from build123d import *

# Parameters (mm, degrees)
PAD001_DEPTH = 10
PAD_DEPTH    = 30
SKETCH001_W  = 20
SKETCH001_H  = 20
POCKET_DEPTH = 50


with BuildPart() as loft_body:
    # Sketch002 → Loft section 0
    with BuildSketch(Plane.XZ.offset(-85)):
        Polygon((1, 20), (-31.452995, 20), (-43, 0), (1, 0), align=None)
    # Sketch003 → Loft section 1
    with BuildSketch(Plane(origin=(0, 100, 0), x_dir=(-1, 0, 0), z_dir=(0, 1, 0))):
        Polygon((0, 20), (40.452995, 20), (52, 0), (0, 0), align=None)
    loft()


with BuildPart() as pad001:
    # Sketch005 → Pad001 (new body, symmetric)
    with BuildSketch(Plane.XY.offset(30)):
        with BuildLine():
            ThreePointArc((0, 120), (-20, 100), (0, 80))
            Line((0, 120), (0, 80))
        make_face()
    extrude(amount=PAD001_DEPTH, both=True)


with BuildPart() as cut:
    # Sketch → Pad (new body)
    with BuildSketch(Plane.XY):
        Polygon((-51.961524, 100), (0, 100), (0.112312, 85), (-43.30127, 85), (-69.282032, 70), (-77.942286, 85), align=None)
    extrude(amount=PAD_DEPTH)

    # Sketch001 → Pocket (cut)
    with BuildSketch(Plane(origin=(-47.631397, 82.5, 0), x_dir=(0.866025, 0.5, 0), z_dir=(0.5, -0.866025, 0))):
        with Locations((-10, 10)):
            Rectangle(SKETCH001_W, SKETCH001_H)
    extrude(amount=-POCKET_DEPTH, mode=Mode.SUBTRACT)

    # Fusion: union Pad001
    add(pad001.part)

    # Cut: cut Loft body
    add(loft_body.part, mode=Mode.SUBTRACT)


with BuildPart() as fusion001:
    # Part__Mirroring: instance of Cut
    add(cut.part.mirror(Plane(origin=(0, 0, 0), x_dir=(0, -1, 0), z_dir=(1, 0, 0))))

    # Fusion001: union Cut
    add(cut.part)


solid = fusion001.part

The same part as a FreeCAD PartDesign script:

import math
import FreeCAD as App
import Part
import Sketcher
Q = App.Units.Quantity


def add_polygon(sketch, points):
    """Adds a closed chain of lines whose ends are joined by coincident constraints."""
    first, n = sketch.GeometryCount, len(points)
    for a, b in zip(points, points[1:] + points[:1]):
        sketch.addGeometry(Part.LineSegment(App.Vector(*a, 0), App.Vector(*b, 0)), False)
    for i in range(n):
        sketch.addConstraint(Sketcher.Constraint("Coincident", first + i, 2, first + (i + 1) % n, 1))

doc = App.newDocument("Part")
body = doc.addObject("PartDesign::Body", "Body")

sketch1 = doc.addObject("Sketcher::SketchObject", "Sketch")
body.addObject(sketch1)
sketch1.AttachmentSupport = (doc.XZ_Plane, [""])
sketch1.MapMode = "FlatFace"
sketch1.AttachmentOffset = App.Placement(App.Vector(0, 0, -85), App.Rotation())
add_polygon(sketch1, [(1, 20), (-31.452995, 20), (-43, 0), (1, 0)])
sketch1.addConstraint(Sketcher.Constraint("Horizontal", 0))
sketch1.addConstraint(Sketcher.Constraint("Horizontal", 2))
sketch1.addConstraint(Sketcher.Constraint("Vertical", 3))
sketch1.addConstraint(Sketcher.Constraint("PointOnObject", 1, 2, -1))
sketch1.addConstraint(Sketcher.Constraint("DistanceX", 2, 1, 2, 2, 44.0))
sketch1.addConstraint(Sketcher.Constraint("DistanceY", 3, 1, 3, 2, 20.0))
sketch1.addConstraint(Sketcher.Constraint("Angle", 1, Q("-119.999999 deg")))
sketch1.addConstraint(Sketcher.Constraint("DistanceX", 1, 2, -1, 1, 43.0))

sketch2 = doc.addObject("Sketcher::SketchObject", "Sketch001")
body.addObject(sketch2)
sketch2.AttachmentSupport = (doc.XZ_Plane, [""])
sketch2.MapMode = "FlatFace"
sketch2.AttachmentOffset = App.Placement(App.Vector(0, 0, -100), App.Rotation())
add_polygon(sketch2, [(-40.452995, 20), (0, 20), (0, 0), (-52, 0)])
sketch2.addConstraint(Sketcher.Constraint("Horizontal", 0))
sketch2.addConstraint(Sketcher.Constraint("Vertical", 1))
sketch2.addConstraint(Sketcher.Constraint("Horizontal", 2))
sketch2.addConstraint(Sketcher.Constraint("Coincident", 1, 2, -1, 1))
sketch2.addConstraint(Sketcher.Constraint("DistanceX", 2, 2, 2, 1, 52.0))
sketch2.addConstraint(Sketcher.Constraint("DistanceY", 1, 2, 1, 1, 20.0))
sketch2.addConstraint(Sketcher.Constraint("Angle", 3, Q("60.000001 deg")))

additiveloft = doc.addObject("PartDesign::AdditiveLoft", "AdditiveLoft")
body.addObject(additiveloft)
additiveloft.Profile = sketch1
additiveloft.Sections = [sketch2]
body2 = doc.addObject("PartDesign::Body", "Body001")

sketch3 = doc.addObject("Sketcher::SketchObject", "Sketch002")
body2.addObject(sketch3)
sketch3.AttachmentSupport = (doc.getObject("XY_Plane001"), [""])
sketch3.MapMode = "FlatFace"
sketch3.AttachmentOffset = App.Placement(App.Vector(0, 0, 30), App.Rotation())
sketch3.addGeometry(Part.ArcOfCircle(Part.Circle(App.Vector(0, 100, 0), App.Vector(0, 0, 1), 20), math.radians(90), math.radians(270)), False)
sketch3.addGeometry(Part.LineSegment(App.Vector(0, 80, 0), App.Vector(0, 120, 0)), False)
sketch3.addConstraint(Sketcher.Constraint("Coincident", 0, 1, 1, 2))
sketch3.addConstraint(Sketcher.Constraint("Coincident", 1, 1, 0, 2))
sketch3.addConstraint(Sketcher.Constraint("Vertical", 1))
sketch3.addConstraint(Sketcher.Constraint("PointOnObject", 0, 3, -2))
sketch3.addConstraint(Sketcher.Constraint("PointOnObject", 0, 1, -2))
sketch3.addConstraint(Sketcher.Constraint("Radius", 0, 20.0))
sketch3.addConstraint(Sketcher.Constraint("DistanceY", -1, 1, 0, 3, 100.0))
pad1 = doc.addObject("PartDesign::Pad", "Pad")
body2.addObject(pad1)
pad1.Profile = sketch3
pad1.Length = 20
pad1.Midplane = True
body3 = doc.addObject("PartDesign::Body", "Body002")

sketch4 = doc.addObject("Sketcher::SketchObject", "Sketch003")
body3.addObject(sketch4)
sketch4.AttachmentSupport = (doc.getObject("XY_Plane002"), [""])
sketch4.MapMode = "FlatFace"
add_polygon(sketch4, [(0, 100), (-51.961524, 100), (-77.942286, 85), (-69.282032, 70), (-43.30127, 85), (0.112312, 85)])
sketch4.addConstraint(Sketcher.Constraint("Horizontal", 0))
sketch4.addConstraint(Sketcher.Constraint("Horizontal", 4))
sketch4.addConstraint(Sketcher.Constraint("PointOnObject", 5, 2, -2))
sketch4.addConstraint(Sketcher.Constraint("Perpendicular", 1, 2))
sketch4.addConstraint(Sketcher.Constraint("Perpendicular", 2, 3))
sketch4.addConstraint(Sketcher.Constraint("Horizontal", 1, 2, 3, 2))
sketch4.addConstraint(Sketcher.Constraint("Equal", 1, 3))
sketch4.addConstraint(Sketcher.Constraint("Angle", 1, Q("-150 deg")))
sketch4.addConstraint(Sketcher.Constraint("Distance", 1, 30.0))
sketch4.addConstraint(Sketcher.Constraint("DistanceY", -1, 1, 0, 2, 100.0))
sketch4.addConstraint(Sketcher.Constraint("DistanceX", 1, 2, 4, 2, 78.054598))
sketch4.addConstraint(Sketcher.Constraint("DistanceX", 0, 2, 0, 1, 51.961524))
pad2 = doc.addObject("PartDesign::Pad", "Pad001")
body3.addObject(pad2)
pad2.Profile = sketch4
pad2.Length = 30

sketch5 = doc.addObject("Sketcher::SketchObject", "Sketch004")
body3.addObject(sketch5)
sketch5.Placement = App.Placement(App.Vector(-47.631397, 82.5, 0), App.Rotation(App.Vector(0.866025303, 0.500000175, 0), App.Vector(0, 0, 1), App.Vector(0.500000175, -0.866025303, 0), "ZXY"))
add_polygon(sketch5, [(-20, 20), (-20, 0), (0, 0), (0, 20)])
sketch5.addConstraint(Sketcher.Constraint("Vertical", 0))
sketch5.addConstraint(Sketcher.Constraint("Horizontal", 1))
sketch5.addConstraint(Sketcher.Constraint("Vertical", 2))
sketch5.addConstraint(Sketcher.Constraint("Horizontal", 3))
sketch5.addConstraint(Sketcher.Constraint("Coincident", 1, 2, -1, 1))
sketch5.addConstraint(Sketcher.Constraint("Equal", 3, 0))
sketch5.addConstraint(Sketcher.Constraint("DistanceX", 1, 1, 1, 2, 20.0))
pocket1 = doc.addObject("PartDesign::Pocket", "Pocket")
body3.addObject(pocket1)
pocket1.Profile = sketch5
pocket1.Length = 50
doc.recompute()

boolean = doc.addObject("PartDesign::Boolean", "Boolean")
body3.addObject(boolean)
boolean.Type = "Fuse"
boolean.addObjects([body2])
doc.recompute()

boolean2 = doc.addObject("PartDesign::Boolean", "Boolean001")
body3.addObject(boolean2)
boolean2.Type = "Cut"
boolean2.addObjects([body])
body4 = doc.addObject("PartDesign::Body", "Body003")
doc.recompute()

mirroring = doc.addObject("Part::Mirroring", "Mirroring")
mirroring.Source = body3
mirroring.Base = App.Vector(0, 0, 0)
mirroring.Normal = App.Vector(1, 0, 0)
body4.BaseFeature = mirroring
doc.recompute()

boolean3 = doc.addObject("PartDesign::Boolean", "Boolean002")
body4.addObject(boolean3)
boolean3.Type = "Fuse"
boolean3.addObjects([body3])
mirroring.Visibility = False

doc.recompute()
